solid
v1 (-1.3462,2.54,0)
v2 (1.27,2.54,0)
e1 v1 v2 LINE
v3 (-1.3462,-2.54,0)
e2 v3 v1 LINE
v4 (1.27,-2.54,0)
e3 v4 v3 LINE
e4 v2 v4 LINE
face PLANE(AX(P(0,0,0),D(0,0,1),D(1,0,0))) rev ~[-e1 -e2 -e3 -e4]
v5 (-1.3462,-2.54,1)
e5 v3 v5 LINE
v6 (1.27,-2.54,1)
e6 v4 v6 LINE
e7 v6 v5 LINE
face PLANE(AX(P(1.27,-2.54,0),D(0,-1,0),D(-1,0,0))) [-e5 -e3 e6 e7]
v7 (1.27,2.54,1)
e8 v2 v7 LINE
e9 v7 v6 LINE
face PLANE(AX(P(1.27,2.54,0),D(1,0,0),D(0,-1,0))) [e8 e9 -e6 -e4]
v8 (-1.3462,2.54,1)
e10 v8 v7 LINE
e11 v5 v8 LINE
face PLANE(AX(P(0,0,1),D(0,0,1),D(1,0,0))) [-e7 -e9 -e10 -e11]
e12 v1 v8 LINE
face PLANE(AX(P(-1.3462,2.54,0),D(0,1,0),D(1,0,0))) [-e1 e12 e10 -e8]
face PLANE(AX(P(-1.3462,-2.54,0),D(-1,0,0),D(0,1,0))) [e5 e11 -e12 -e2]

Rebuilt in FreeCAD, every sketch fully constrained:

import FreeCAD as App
import Part
import Sketcher

V = App.Vector
Q = App.Units.Quantity

doc = App.newDocument("Part")
body = doc.addObject("PartDesign::Body", "Body")

sketch1 = body.newObject("Sketcher::SketchObject", "Sketch")
sketch1.AttachmentSupport = (doc.getObject("XY_Plane"), [""])
sketch1.MapMode = "FlatFace"
sketch1.addGeometry([
    Part.LineSegment(V(1.3, 2.5, 0), V(-1.3, 2.5, 0)),
    Part.LineSegment(V(-1.3, 2.5, 0), V(-1.3, -2.5, 0)),
    Part.LineSegment(V(-1.3, -2.5, 0), V(1.3, -2.5, 0)),
    Part.LineSegment(V(1.3, -2.5, 0), V(1.3, 2.5, 0)),
], False)
sketch1.addConstraint([
    Sketcher.Constraint("Coincident", 0, 2, 1, 1),
    Sketcher.Constraint("Coincident", 1, 2, 2, 1),
    Sketcher.Constraint("Coincident", 2, 2, 3, 1),
    Sketcher.Constraint("Coincident", 3, 2, 0, 1),
    Sketcher.Constraint("Horizontal", 0),
    Sketcher.Constraint("Vertical", 1),
    Sketcher.Constraint("Horizontal", 2),
    Sketcher.Constraint("Vertical", 3),
    Sketcher.Constraint("DistanceY", 1, 2, 1, 1, Q("0.2 in")),
    Sketcher.Constraint("DistanceY", -1, 1, 0, 2, Q("0.1 in")),
    Sketcher.Constraint("DistanceX", 0, 2, 0, 1, Q("0.103 in")),
    Sketcher.Constraint("DistanceX", -1, 1, 2, 2, Q("0.05 in")),
])
pad1 = body.newObject("PartDesign::Pad", "Pad")
pad1.Profile = sketch1
pad1.Length = 1

doc.recompute()
